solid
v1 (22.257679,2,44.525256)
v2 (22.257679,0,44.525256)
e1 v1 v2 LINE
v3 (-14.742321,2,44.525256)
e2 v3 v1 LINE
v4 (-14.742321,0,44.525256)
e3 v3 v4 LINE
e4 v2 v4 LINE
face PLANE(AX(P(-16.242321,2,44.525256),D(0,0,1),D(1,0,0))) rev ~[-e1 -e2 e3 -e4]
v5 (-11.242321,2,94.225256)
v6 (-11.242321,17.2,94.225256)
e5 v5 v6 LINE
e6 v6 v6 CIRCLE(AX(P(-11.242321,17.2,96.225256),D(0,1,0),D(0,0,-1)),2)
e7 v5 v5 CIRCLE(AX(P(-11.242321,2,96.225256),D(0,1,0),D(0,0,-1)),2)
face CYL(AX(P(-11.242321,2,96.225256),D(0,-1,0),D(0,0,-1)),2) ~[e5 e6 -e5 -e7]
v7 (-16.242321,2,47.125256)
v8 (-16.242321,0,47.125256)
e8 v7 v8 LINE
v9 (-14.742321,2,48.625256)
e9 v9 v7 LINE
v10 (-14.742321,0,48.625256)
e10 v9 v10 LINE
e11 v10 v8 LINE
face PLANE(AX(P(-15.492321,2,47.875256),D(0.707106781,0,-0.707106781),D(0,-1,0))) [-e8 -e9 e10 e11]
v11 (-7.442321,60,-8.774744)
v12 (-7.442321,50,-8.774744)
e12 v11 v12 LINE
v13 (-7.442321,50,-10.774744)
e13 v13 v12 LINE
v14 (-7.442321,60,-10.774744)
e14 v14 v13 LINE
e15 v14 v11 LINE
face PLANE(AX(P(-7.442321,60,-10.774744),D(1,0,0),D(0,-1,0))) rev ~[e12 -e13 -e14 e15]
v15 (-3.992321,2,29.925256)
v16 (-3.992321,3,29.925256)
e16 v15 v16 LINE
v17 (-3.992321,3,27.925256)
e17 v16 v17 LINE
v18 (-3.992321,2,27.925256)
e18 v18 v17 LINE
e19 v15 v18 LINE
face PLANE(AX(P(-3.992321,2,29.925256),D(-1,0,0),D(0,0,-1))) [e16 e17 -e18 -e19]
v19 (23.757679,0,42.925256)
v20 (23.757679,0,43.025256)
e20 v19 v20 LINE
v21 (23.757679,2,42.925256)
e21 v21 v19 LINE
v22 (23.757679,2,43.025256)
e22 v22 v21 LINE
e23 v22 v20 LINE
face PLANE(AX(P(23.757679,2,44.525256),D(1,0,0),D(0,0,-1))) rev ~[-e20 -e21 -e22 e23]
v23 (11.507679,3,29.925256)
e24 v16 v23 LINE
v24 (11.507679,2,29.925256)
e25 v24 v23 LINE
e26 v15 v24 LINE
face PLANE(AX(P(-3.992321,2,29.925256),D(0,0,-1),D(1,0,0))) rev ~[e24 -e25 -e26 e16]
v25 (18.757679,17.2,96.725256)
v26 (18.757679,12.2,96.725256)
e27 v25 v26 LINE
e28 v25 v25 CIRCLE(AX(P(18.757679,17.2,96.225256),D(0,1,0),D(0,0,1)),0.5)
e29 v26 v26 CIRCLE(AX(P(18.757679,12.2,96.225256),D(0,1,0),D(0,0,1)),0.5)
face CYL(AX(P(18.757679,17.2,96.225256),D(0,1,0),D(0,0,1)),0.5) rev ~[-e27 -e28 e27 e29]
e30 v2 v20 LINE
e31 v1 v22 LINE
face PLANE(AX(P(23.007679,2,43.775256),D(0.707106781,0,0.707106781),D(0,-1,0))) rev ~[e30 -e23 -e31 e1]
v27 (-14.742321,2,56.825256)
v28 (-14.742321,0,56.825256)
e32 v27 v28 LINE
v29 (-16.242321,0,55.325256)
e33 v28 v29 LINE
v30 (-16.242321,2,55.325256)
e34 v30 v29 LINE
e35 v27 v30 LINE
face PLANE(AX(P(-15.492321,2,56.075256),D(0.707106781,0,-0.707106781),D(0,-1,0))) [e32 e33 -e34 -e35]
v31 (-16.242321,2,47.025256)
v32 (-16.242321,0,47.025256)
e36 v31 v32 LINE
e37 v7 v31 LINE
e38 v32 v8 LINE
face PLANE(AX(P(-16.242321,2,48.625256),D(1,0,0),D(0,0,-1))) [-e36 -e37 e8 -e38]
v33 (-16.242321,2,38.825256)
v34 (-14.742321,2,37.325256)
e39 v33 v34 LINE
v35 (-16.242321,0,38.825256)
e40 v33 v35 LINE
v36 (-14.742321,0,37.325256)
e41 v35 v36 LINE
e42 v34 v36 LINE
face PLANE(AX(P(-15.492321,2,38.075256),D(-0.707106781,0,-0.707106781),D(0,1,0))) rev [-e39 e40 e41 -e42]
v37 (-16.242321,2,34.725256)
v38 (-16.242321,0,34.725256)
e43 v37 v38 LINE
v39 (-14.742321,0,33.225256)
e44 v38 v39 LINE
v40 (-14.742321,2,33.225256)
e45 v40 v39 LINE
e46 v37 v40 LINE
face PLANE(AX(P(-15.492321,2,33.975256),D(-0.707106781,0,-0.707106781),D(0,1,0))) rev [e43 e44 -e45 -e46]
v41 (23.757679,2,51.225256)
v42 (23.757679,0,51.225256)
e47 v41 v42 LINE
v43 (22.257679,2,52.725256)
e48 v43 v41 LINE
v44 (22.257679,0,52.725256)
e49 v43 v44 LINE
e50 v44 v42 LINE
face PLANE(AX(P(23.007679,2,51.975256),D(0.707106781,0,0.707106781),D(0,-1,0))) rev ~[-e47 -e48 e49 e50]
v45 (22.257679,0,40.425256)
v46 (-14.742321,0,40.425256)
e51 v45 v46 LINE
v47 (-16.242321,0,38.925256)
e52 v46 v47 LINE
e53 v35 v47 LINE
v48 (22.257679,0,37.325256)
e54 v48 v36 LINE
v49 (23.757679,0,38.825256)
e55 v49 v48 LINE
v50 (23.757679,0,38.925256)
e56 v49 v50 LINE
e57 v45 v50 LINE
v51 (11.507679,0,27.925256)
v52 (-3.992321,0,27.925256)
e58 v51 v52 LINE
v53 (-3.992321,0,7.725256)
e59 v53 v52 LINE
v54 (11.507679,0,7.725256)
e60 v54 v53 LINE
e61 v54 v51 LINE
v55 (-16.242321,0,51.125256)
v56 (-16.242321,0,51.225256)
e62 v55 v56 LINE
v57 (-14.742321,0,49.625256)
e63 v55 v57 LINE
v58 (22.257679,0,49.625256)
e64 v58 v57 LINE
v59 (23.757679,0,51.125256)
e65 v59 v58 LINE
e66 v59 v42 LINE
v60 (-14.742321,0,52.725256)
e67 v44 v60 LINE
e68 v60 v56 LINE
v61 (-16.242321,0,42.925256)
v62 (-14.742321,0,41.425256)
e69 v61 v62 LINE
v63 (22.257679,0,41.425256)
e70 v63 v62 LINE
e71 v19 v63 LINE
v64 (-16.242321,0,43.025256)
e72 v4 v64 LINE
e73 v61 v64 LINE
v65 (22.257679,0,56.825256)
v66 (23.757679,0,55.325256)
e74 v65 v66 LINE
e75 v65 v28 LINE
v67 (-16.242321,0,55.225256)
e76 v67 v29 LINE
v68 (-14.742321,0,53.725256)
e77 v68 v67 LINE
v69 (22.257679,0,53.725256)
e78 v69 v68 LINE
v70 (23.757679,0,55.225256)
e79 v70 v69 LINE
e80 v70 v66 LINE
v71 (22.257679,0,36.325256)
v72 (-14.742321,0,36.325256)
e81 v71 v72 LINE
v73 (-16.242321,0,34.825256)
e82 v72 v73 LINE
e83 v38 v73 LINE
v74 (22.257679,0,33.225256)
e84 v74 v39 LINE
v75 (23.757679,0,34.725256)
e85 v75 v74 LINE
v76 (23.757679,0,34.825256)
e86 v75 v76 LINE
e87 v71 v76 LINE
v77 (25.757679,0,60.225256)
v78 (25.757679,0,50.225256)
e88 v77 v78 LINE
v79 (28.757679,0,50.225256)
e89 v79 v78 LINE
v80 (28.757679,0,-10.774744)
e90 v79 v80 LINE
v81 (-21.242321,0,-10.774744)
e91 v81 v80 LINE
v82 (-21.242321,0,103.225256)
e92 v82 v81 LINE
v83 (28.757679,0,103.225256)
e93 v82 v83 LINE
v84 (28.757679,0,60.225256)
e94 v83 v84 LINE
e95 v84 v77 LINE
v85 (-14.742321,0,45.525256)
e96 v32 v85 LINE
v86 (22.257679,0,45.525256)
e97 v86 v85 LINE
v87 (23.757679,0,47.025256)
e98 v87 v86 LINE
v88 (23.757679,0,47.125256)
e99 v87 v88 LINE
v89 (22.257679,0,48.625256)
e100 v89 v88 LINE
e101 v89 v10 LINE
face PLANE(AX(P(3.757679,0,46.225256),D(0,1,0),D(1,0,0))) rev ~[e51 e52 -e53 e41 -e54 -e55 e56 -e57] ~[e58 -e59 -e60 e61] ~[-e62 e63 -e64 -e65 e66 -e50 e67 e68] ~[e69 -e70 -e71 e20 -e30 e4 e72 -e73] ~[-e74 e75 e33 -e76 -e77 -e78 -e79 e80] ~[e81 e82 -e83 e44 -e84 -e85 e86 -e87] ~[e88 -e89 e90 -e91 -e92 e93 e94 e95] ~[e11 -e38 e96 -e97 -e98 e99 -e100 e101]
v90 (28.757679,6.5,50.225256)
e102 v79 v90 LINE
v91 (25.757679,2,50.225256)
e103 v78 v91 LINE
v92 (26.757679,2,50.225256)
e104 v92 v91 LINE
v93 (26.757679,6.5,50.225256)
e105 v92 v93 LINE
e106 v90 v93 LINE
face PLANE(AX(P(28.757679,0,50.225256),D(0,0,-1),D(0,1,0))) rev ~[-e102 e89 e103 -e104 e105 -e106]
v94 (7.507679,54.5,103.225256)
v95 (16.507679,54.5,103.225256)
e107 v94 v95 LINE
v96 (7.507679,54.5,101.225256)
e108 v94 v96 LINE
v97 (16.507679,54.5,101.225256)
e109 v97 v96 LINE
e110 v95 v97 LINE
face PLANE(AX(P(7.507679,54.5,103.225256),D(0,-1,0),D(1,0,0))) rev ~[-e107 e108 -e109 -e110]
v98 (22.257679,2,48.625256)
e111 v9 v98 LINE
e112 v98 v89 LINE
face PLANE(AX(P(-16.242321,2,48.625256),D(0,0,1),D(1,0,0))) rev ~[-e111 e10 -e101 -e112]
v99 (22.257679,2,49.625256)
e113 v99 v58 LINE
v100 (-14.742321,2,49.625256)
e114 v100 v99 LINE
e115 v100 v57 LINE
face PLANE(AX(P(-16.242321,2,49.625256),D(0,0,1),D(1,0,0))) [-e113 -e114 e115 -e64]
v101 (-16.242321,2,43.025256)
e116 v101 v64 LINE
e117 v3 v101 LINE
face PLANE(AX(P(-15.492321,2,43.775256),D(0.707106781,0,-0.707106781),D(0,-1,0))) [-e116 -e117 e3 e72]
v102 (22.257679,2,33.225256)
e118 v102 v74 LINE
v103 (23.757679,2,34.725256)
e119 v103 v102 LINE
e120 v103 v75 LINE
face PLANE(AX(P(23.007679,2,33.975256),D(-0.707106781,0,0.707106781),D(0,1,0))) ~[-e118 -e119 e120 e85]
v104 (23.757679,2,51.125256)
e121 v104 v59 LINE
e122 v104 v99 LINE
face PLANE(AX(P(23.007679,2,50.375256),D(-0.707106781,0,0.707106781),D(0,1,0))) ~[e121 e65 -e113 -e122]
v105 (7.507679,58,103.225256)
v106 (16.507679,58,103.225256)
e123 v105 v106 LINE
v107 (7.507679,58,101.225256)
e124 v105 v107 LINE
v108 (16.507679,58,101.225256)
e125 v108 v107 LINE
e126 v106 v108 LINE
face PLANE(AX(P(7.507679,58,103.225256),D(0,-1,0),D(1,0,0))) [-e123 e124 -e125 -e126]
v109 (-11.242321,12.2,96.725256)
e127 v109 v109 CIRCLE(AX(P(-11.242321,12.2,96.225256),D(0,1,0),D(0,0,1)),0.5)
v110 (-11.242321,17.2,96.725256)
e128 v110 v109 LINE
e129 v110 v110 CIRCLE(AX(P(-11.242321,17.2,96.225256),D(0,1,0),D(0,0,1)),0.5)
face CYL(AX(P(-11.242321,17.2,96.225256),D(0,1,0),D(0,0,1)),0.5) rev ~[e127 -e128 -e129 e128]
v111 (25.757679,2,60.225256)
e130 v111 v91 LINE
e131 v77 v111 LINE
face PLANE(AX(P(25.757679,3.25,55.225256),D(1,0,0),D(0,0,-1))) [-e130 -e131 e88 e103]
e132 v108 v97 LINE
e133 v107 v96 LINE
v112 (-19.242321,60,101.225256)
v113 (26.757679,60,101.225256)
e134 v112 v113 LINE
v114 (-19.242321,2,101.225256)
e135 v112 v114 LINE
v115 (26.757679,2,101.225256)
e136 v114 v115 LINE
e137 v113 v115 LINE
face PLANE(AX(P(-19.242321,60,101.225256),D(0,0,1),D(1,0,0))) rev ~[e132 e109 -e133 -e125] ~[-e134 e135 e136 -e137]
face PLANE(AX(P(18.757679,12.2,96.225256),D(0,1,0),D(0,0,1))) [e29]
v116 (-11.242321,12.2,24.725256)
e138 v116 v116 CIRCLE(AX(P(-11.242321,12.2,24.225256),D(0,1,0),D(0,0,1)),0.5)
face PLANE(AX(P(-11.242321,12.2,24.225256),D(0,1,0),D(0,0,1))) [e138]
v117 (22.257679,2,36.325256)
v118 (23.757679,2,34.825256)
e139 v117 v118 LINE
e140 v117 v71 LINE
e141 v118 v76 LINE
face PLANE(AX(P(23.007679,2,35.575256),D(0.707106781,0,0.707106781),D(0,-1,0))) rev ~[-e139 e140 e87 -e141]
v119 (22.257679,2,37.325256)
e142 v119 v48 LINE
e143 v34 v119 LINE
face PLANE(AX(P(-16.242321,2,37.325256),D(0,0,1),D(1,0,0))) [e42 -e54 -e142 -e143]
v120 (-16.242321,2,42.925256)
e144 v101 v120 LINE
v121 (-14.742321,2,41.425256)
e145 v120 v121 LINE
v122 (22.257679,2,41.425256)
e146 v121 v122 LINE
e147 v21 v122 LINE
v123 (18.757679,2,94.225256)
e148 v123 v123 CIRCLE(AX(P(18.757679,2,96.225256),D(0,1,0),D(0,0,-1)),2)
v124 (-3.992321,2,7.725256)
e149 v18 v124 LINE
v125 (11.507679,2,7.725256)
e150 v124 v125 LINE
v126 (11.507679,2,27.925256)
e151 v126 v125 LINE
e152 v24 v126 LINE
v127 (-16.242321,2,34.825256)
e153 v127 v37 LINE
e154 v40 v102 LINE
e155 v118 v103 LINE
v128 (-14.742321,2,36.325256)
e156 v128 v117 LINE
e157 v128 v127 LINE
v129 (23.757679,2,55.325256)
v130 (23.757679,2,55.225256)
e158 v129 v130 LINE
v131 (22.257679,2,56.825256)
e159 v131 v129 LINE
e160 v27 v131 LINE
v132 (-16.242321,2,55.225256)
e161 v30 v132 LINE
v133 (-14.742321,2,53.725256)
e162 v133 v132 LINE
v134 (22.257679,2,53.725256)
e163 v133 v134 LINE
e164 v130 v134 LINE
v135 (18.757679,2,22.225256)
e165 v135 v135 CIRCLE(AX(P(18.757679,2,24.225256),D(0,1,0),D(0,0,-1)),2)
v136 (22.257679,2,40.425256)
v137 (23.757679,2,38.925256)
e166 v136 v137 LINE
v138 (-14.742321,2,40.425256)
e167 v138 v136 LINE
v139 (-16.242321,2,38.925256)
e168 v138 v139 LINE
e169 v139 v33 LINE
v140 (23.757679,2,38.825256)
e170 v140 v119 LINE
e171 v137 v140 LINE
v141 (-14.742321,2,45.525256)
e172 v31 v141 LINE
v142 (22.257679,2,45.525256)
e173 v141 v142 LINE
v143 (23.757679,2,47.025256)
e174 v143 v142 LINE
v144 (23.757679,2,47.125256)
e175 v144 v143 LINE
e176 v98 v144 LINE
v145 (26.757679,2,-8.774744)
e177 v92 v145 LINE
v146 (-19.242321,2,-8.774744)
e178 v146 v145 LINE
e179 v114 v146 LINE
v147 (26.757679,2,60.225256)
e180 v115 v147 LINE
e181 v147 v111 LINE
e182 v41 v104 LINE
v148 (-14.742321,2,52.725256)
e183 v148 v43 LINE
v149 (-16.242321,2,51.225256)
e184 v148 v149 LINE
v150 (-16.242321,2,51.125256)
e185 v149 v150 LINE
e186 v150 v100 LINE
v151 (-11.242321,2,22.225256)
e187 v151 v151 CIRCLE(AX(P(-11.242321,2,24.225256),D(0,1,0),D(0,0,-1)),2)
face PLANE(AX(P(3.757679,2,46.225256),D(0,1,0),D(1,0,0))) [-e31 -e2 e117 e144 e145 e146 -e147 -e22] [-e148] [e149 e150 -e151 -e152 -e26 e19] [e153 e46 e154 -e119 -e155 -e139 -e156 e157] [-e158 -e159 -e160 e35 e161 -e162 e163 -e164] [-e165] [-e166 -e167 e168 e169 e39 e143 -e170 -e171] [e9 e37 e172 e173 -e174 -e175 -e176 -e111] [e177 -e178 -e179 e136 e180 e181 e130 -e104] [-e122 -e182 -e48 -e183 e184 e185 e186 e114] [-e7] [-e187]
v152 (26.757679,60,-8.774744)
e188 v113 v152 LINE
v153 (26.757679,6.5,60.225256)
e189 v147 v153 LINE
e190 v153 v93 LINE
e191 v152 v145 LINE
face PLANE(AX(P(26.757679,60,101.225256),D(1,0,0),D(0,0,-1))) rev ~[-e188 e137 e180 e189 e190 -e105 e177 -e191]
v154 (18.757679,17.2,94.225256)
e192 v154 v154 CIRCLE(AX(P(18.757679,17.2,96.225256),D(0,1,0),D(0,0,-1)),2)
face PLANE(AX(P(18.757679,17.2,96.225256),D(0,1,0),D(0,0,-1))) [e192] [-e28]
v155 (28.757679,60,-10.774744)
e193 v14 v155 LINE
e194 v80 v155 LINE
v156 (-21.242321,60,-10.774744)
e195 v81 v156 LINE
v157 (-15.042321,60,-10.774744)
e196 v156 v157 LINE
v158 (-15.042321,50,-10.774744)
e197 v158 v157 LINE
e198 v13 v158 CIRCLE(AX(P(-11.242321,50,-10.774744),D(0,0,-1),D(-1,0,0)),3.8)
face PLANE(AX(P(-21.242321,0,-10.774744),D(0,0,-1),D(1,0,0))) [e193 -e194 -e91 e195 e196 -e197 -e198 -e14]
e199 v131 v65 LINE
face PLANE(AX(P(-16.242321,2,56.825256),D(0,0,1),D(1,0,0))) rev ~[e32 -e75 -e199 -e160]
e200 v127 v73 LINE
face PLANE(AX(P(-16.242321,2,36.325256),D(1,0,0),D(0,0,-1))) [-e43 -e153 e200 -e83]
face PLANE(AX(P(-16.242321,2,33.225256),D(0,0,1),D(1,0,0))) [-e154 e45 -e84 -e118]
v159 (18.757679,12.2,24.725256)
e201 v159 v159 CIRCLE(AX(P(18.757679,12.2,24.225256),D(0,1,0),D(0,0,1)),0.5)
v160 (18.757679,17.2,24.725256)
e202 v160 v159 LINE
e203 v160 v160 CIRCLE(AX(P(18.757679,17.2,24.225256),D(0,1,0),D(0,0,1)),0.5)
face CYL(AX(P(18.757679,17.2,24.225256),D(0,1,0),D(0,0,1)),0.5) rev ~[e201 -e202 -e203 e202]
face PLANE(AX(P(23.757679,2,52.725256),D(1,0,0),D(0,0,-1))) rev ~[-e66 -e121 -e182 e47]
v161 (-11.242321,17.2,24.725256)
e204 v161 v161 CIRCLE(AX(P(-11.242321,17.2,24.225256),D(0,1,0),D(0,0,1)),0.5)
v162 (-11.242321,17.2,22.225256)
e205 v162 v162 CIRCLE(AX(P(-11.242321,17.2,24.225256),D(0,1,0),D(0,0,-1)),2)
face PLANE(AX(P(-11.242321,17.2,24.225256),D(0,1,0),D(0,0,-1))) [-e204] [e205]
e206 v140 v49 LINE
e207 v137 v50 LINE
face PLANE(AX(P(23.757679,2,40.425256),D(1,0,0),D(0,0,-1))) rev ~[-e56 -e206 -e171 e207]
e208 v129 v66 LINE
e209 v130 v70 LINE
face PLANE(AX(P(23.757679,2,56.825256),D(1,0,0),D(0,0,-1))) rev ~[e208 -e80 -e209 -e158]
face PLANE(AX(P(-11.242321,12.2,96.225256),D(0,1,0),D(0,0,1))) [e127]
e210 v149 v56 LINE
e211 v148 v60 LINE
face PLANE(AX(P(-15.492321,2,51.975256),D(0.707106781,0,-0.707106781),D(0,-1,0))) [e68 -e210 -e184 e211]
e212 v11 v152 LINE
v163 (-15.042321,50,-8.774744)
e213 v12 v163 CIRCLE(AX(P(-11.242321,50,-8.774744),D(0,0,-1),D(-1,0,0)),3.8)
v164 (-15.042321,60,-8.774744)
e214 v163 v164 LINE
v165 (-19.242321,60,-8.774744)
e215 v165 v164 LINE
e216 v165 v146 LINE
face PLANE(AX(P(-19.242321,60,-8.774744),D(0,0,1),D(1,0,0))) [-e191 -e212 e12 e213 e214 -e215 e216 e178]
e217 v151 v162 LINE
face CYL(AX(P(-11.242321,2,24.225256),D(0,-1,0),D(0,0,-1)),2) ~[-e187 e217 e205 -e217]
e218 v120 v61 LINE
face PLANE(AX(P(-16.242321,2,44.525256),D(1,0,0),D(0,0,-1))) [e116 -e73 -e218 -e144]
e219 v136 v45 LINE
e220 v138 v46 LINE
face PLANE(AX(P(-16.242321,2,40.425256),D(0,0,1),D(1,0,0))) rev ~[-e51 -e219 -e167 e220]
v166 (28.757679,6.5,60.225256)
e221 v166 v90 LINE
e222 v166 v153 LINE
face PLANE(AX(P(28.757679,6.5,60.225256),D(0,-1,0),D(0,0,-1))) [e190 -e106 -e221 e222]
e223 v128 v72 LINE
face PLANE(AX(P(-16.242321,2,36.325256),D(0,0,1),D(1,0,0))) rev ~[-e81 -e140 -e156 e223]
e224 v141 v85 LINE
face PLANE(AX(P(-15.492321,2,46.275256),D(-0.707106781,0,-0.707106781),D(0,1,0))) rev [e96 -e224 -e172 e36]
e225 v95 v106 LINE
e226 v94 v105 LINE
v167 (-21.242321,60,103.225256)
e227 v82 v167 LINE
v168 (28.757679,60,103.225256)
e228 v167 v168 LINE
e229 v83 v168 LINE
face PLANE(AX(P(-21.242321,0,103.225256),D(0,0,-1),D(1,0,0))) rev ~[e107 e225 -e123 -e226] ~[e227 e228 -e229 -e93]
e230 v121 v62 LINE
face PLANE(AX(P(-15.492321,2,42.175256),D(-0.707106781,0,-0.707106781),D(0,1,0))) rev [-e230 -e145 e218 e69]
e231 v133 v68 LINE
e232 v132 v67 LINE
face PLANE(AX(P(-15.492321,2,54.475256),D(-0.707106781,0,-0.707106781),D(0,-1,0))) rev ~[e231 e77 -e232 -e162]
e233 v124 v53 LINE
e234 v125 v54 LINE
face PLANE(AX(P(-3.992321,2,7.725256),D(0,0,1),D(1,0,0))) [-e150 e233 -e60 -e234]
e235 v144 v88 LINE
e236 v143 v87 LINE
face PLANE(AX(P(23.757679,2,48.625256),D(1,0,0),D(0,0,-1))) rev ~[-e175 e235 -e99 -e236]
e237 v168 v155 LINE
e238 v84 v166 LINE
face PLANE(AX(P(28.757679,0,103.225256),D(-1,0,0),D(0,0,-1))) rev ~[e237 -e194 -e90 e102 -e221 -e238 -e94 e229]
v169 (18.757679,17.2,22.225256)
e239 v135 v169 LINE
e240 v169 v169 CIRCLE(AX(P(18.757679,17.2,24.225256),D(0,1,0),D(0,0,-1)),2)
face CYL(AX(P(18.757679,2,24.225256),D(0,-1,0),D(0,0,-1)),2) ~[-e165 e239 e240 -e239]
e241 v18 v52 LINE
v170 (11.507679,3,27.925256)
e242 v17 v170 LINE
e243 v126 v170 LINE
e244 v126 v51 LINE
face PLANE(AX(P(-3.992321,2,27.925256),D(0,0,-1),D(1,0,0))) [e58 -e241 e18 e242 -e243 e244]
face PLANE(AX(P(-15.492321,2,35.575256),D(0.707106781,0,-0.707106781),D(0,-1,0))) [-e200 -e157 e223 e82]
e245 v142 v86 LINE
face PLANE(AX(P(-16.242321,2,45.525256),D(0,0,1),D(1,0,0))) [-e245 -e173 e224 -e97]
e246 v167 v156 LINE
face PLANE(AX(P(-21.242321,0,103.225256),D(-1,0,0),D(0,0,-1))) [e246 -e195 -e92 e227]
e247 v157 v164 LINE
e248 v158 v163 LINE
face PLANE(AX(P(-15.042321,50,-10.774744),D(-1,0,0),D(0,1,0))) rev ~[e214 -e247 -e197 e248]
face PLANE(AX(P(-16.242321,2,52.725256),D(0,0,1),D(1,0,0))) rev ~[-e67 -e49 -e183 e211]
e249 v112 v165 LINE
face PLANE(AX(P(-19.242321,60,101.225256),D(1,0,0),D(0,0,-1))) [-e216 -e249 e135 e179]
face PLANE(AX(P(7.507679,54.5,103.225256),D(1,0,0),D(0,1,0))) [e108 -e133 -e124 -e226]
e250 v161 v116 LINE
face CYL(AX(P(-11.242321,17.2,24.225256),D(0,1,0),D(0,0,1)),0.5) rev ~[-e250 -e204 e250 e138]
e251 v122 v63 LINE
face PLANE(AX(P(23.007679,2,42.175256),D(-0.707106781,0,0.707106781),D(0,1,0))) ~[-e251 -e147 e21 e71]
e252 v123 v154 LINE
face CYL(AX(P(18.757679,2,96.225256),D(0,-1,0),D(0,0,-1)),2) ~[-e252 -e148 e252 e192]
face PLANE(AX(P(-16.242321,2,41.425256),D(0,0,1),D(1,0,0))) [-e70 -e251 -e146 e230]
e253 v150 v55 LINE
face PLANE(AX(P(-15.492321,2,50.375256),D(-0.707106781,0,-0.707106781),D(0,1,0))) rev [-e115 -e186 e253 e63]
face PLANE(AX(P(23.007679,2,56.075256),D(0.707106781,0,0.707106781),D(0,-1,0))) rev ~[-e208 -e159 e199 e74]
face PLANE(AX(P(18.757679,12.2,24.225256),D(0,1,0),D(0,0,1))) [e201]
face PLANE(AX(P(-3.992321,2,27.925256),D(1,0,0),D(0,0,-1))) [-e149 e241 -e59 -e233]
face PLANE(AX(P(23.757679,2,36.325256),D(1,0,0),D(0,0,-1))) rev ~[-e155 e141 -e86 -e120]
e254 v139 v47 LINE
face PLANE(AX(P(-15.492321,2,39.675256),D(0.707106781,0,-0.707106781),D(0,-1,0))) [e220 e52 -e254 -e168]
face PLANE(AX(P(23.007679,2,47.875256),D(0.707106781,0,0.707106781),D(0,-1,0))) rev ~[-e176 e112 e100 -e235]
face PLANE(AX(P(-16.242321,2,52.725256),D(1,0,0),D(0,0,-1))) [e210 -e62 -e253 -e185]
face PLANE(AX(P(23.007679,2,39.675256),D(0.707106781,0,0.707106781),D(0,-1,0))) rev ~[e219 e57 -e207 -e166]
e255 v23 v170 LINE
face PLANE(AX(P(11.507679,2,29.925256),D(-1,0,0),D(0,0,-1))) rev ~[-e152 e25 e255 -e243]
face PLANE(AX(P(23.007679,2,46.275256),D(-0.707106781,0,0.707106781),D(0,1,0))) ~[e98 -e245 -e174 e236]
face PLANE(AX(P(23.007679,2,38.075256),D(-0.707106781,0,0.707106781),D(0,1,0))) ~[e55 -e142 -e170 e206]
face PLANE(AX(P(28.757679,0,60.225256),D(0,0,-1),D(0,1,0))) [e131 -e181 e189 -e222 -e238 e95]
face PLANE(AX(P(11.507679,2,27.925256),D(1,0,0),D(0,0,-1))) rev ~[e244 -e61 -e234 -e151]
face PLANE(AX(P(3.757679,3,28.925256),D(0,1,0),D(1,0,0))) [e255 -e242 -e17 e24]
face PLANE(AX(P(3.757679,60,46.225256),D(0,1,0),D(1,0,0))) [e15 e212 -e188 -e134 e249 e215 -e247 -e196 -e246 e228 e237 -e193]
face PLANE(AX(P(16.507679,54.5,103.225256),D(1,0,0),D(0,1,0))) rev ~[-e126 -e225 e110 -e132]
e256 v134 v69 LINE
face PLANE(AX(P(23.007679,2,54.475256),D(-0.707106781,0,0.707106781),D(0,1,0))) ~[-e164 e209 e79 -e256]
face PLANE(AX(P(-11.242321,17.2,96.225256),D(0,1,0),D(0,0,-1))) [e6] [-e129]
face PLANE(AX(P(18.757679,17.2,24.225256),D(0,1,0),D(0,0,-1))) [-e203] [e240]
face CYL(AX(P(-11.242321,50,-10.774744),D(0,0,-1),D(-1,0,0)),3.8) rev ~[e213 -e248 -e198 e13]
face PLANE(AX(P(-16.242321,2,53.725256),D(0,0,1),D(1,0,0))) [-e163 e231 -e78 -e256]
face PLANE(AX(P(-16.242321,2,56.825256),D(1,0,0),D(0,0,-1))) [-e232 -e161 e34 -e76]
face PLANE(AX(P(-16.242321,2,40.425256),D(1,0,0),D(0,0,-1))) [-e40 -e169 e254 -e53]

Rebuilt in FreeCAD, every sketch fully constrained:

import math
import FreeCAD as App
import Part
import Sketcher
from FreeCAD import Vector
Q = App.Units.Quantity


def edges_at(feature, points):
    """Names of the edges that pass closest to the given points."""
    edges = feature.Shape.Edges
    near = lambda p: min(range(len(edges)), key=lambda i: edges[i].distToShape(Part.Vertex(*p))[0])
    return sorted({f"Edge{near(p) + 1}" for p in points})

doc = App.newDocument("Part")
params = doc.addObject("Spreadsheet::Sheet", "Params")
for row, (alias, value) in enumerate([
    ("sketch1_width", "50 mm"),
    ("sketch1_height", "114 mm"),
    ("pad1_length", "60 mm"),
    ("sketch2_width", "46 mm"),
    ("sketch2_height", "110 mm"),
    ("pocket1_length", "58 mm"),
    ("sketch3_diameter", "4 mm"),
    ("pad2_length", "15.2 mm"),
    ("sketch4_diameter", "1 mm"),
    ("pocket2_length", "5 mm"),
    ("sketch5_width", "15.5 mm"),
    ("sketch5_height", "20.2 mm"),
    ("sketch6_height", "2 mm"),
    ("sketch6_width", "15.5 mm"),
    ("pad3_length", "1 mm"),
    ("sketch7_width", "40 mm"),
    ("sketch7_height", "3.1 mm"),
    ("sketch8_width", "40 mm"),
    ("sketch8_height", "3.1 mm"),
    ("sketch9_width", "40 mm"),
    ("sketch9_height", "3.1 mm"),
    ("sketch10_width", "40 mm"),
    ("sketch10_height", "3.1 mm"),
    ("sketch11_width", "40 mm"),
    ("sketch11_height", "3.1 mm"),
    ("sketch12_width", "40 mm"),
    ("sketch12_height", "3.1 mm"),
    ("chamfer_size", "1.5 mm"),
    ("sketch13_height", "10 mm"),
    ("sketch13_width", "6.5 mm"),
    ("pocket10_length", "3 mm"),
    ("sketch14_radius", "3.8 mm"),
    ("sketch14_height", "10 mm"),
    ("sketch15_diameter", "7.6 mm"),
    ("sketch16_width", "9 mm"),
    ("sketch16_height", "3.5 mm"),
], start=1):
    params.set(f"A{row}", alias)
    params.set(f"B{row}", "=" + value)
    params.setAlias(f"B{row}", alias)

body = doc.addObject("PartDesign::Body", "Body")

# Sketch on XZ plane
sketch1 = body.newObject("Sketcher::SketchObject", "Sketch")
sketch1.AttachmentSupport = (doc.getObject("XZ_Plane"), [""])
sketch1.MapMode = "FlatFace"
sketch1.addGeometry([
    Part.LineSegment(Vector(-21, -11, 0), Vector(-21, 103, 0)),
    Part.LineSegment(Vector(-21, 103, 0), Vector(29, 103, 0)),
    Part.LineSegment(Vector(29, 103, 0), Vector(29, -11, 0)),
    Part.LineSegment(Vector(29, -11, 0), Vector(-21, -11, 0)),
], False)
sketch1.addConstraint([
    Sketcher.Constraint("Coincident", 0, 2, 1, 1),
    Sketcher.Constraint("Coincident", 1, 2, 2, 1),
    Sketcher.Constraint("Coincident", 2, 2, 3, 1),
    Sketcher.Constraint("Coincident", 3, 2, 0, 1),
    Sketcher.Constraint("Vertical", 0),
    Sketcher.Constraint("Horizontal", 1),
    Sketcher.Constraint("Vertical", 2),
    Sketcher.Constraint("Horizontal", 3),
    Sketcher.Constraint("DistanceX", 1, 1, 1, 2, Q("50 mm")),
    Sketcher.Constraint("DistanceY", 0, 1, 0, 2, Q("114 mm")),
    Sketcher.Constraint("DistanceX", 0, 2, -1, 1, Q("21.242321 mm")),
    Sketcher.Constraint("DistanceY", -1, 1, 0, 2, Q("103.225256 mm")),
])
sketch1.setExpression("Constraints[8]", "Params.sketch1_width")
sketch1.setExpression("Constraints[9]", "Params.sketch1_height")
pad1 = body.newObject("PartDesign::Pad", "Pad")
pad1.Profile = sketch1
pad1.setExpression("Length", "Params.pad1_length")
pad1.Reversed = True

# Sketch on XZ plane
sketch2 = body.newObject("Sketcher::SketchObject", "Sketch001")
sketch2.AttachmentSupport = (doc.getObject("XZ_Plane"), [""])
sketch2.MapMode = "FlatFace"
sketch2.AttachmentOffset = App.Placement(Vector(0, 0, -60), App.Rotation())
sketch2.addGeometry([
    Part.LineSegment(Vector(-19, -9, 0), Vector(-19, 101, 0)),
    Part.LineSegment(Vector(-19, 101, 0), Vector(27, 101, 0)),
    Part.LineSegment(Vector(27, 101, 0), Vector(27, -9, 0)),
    Part.LineSegment(Vector(27, -9, 0), Vector(-19, -9, 0)),
], False)
sketch2.addConstraint([
    Sketcher.Constraint("Coincident", 0, 2, 1, 1),
    Sketcher.Constraint("Coincident", 1, 2, 2, 1),
    Sketcher.Constraint("Coincident", 2, 2, 3, 1),
    Sketcher.Constraint("Coincident", 3, 2, 0, 1),
    Sketcher.Constraint("Vertical", 0),
    Sketcher.Constraint("Horizontal", 1),
    Sketcher.Constraint("Vertical", 2),
    Sketcher.Constraint("Horizontal", 3),
    Sketcher.Constraint("DistanceX", 1, 1, 1, 2, Q("46 mm")),
    Sketcher.Constraint("DistanceY", 0, 1, 0, 2, Q("110 mm")),
    Sketcher.Constraint("DistanceX", 0, 2, -1, 1, Q("19.242321 mm")),
    Sketcher.Constraint("DistanceY", -1, 1, 0, 2, Q("101.225256 mm")),
])
sketch2.setExpression("Constraints[8]", "Params.sketch2_width")
sketch2.setExpression("Constraints[9]", "Params.sketch2_height")
pocket1 = body.newObject("PartDesign::Pocket", "Pocket")
pocket1.Profile = sketch2
pocket1.setExpression("Length", "Params.pocket1_length")
pocket1.Reversed = True

# Sketch on XZ plane
sketch3 = body.newObject("Sketcher::SketchObject", "Sketch002")
sketch3.AttachmentSupport = (doc.getObject("XZ_Plane"), [""])
sketch3.MapMode = "FlatFace"
sketch3.AttachmentOffset = App.Placement(Vector(0, 0, -2), App.Rotation())
sketch3.addGeometry([
    Part.Circle(Vector(-11.2, 24.2, 0), Vector(0, 0, 1), 2),
    Part.Circle(Vector(18.8, 24.2, 0), Vector(0, 0, 1), 2),
    Part.Circle(Vector(18.8, 96.2, 0), Vector(0, 0, 1), 2),
    Part.Circle(Vector(-11.2, 96.2, 0), Vector(0, 0, 1), 2),
], False)
sketch3.addConstraint([
    Sketcher.Constraint("Equal", 0, 1),
    Sketcher.Constraint("Equal", 1, 2),
    Sketcher.Constraint("Equal", 2, 3),
    Sketcher.Constraint("Horizontal", 0, 3, 1, 3),
    Sketcher.Constraint("Horizontal", 2, 3, 3, 3),
    Sketcher.Constraint("Vertical", 1, 3, 2, 3),
    Sketcher.Constraint("Vertical", 0, 3, 3, 3),
    Sketcher.Constraint("Diameter", 0, Q("4 mm")),
    Sketcher.Constraint("DistanceX", 0, 3, 1, 3, Q("30 mm")),
    Sketcher.Constraint("DistanceY", 1, 3, 2, 3, Q("72 mm")),
    Sketcher.Constraint("DistanceX", 0, 3, -1, 1, Q("11.242321 mm")),
    Sketcher.Constraint("DistanceY", -1, 1, 0, 3, Q("24.225256 mm")),
])
sketch3.setExpression("Constraints[7]", "Params.sketch3_diameter")
pad2 = body.newObject("PartDesign::Pad", "Pad001")
pad2.Profile = sketch3
pad2.setExpression("Length", "Params.pad2_length")
pad2.Reversed = True

# Sketch on XZ plane
sketch4 = body.newObject("Sketcher::SketchObject", "Sketch003")
sketch4.AttachmentSupport = (doc.getObject("XZ_Plane"), [""])
sketch4.MapMode = "FlatFace"
sketch4.AttachmentOffset = App.Placement(Vector(0, 0, -17.2), App.Rotation())
sketch4.addGeometry([
    Part.Circle(Vector(-11.2, 24.2, 0), Vector(0, 0, 1), 0.5),
    Part.Circle(Vector(18.8, 24.2, 0), Vector(0, 0, 1), 0.5),
    Part.Circle(Vector(18.8, 96.2, 0), Vector(0, 0, 1), 0.5),
    Part.Circle(Vector(-11.2, 96.2, 0), Vector(0, 0, 1), 0.5),
], False)
sketch4.addConstraint([
    Sketcher.Constraint("Equal", 0, 1),
    Sketcher.Constraint("Equal", 1, 2),
    Sketcher.Constraint("Equal", 2, 3),
    Sketcher.Constraint("Horizontal", 0, 3, 1, 3),
    Sketcher.Constraint("Horizontal", 2, 3, 3, 3),
    Sketcher.Constraint("Vertical", 1, 3, 2, 3),
    Sketcher.Constraint("Vertical", 0, 3, 3, 3),
    Sketcher.Constraint("Diameter", 0, Q("1 mm")),
    Sketcher.Constraint("DistanceX", 0, 3, 1, 3, Q("30 mm")),
    Sketcher.Constraint("DistanceY", 1, 3, 2, 3, Q("72 mm")),
    Sketcher.Constraint("DistanceX", 0, 3, -1, 1, Q("11.242321 mm")),
    Sketcher.Constraint("DistanceY", -1, 1, 0, 3, Q("24.225256 mm")),
])
sketch4.setExpression("Constraints[7]", "Params.sketch4_diameter")
pocket2 = body.newObject("PartDesign::Pocket", "Pocket001")
pocket2.Profile = sketch4
pocket2.setExpression("Length", "Params.pocket2_length")
pocket2.Reversed = True

# Sketch on XZ plane
sketch5 = body.newObject("Sketcher::SketchObject", "Sketch004")
sketch5.AttachmentSupport = (doc.getObject("XZ_Plane"), [""])
sketch5.MapMode = "FlatFace"
sketch5.AttachmentOffset = App.Placement(Vector(0, 0, -2), App.Rotation())
sketch5.addGeometry([
    Part.LineSegment(Vector(-4, 8, 0), Vector(-4, 28, 0)),
    Part.LineSegment(Vector(-4, 28, 0), Vector(12, 28, 0)),
    Part.LineSegment(Vector(12, 28, 0), Vector(12, 8, 0)),
    Part.LineSegment(Vector(12, 8, 0), Vector(-4, 8, 0)),
], False)
sketch5.addConstraint([
    Sketcher.Constraint("Coincident", 0, 2, 1, 1),
    Sketcher.Constraint("Coincident", 1, 2, 2, 1),
    Sketcher.Constraint("Coincident", 2, 2, 3, 1),
    Sketcher.Constraint("Coincident", 3, 2, 0, 1),
    Sketcher.Constraint("Vertical", 0),
    Sketcher.Constraint("Horizontal", 1),
    Sketcher.Constraint("Vertical", 2),
    Sketcher.Constraint("Horizontal", 3),
    Sketcher.Constraint("DistanceX", 1, 1, 1, 2, Q("15.5 mm")),
    Sketcher.Constraint("DistanceY", 0, 1, 0, 2, Q("20.2 mm")),
    Sketcher.Constraint("DistanceX", 0, 2, -1, 1, Q("3.992321 mm")),
    Sketcher.Constraint("DistanceY", -1, 1, 0, 2, Q("27.925256 mm")),
])
sketch5.setExpression("Constraints[8]", "Params.sketch5_width")
sketch5.setExpression("Constraints[9]", "Params.sketch5_height")
pocket3 = body.newObject("PartDesign::Pocket", "Pocket002")
pocket3.Profile = sketch5
pocket3.Type = "UpToFirst"
pocket3.Reversed = True

# Sketch on XZ plane
sketch6 = body.newObject("Sketcher::SketchObject", "Sketch005")
sketch6.AttachmentSupport = (doc.getObject("XZ_Plane"), [""])
sketch6.MapMode = "FlatFace"
sketch6.AttachmentOffset = App.Placement(Vector(0, 0, -2), App.Rotation())
sketch6.addGeometry([
    Part.LineSegment(Vector(-4, 27.9, 0), Vector(-4, 29.9, 0)),
    Part.LineSegment(Vector(-4, 29.9, 0), Vector(11.5, 29.9, 0)),
    Part.LineSegment(Vector(11.5, 29.9, 0), Vector(11.5, 27.9, 0)),
    Part.LineSegment(Vector(11.5, 27.9, 0), Vector(-4, 27.9, 0)),
], False)
sketch6.addConstraint([
    Sketcher.Constraint("Coincident", 0, 2, 1, 1),
    Sketcher.Constraint("Coincident", 1, 2, 2, 1),
    Sketcher.Constraint("Coincident", 2, 2, 3, 1),
    Sketcher.Constraint("Coincident", 3, 2, 0, 1),
    Sketcher.Constraint("Vertical", 0),
    Sketcher.Constraint("Horizontal", 1),
    Sketcher.Constraint("Vertical", 2),
    Sketcher.Constraint("Horizontal", 3),
    Sketcher.Constraint("DistanceY", 0, 1, 0, 2, Q("2 mm")),
    Sketcher.Constraint("DistanceX", 1, 1, 1, 2, Q("15.5 mm")),
    Sketcher.Constraint("DistanceX", 0, 2, -1, 1, Q("3.992321 mm")),
    Sketcher.Constraint("DistanceY", -1, 1, 0, 2, Q("29.925256 mm")),
])
sketch6.setExpression("Constraints[8]", "Params.sketch6_height")
sketch6.setExpression("Constraints[9]", "Params.sketch6_width")
pad3 = body.newObject("PartDesign::Pad", "Pad002")
pad3.Profile = sketch6
pad3.setExpression("Length", "Params.pad3_length")
pad3.Reversed = True

# Sketch on XZ plane
sketch7 = body.newObject("Sketcher::SketchObject", "Sketch006")
sketch7.AttachmentSupport = (doc.getObject("XZ_Plane"), [""])
sketch7.MapMode = "FlatFace"
sketch7.AttachmentOffset = App.Placement(Vector(0, 0, -2), App.Rotation())
sketch7.addGeometry([
    Part.LineSegment(Vector(-16.2, 33.2, 0), Vector(-16.2, 36.3, 0)),
    Part.LineSegment(Vector(-16.2, 36.3, 0), Vector(23.8, 36.3, 0)),
    Part.LineSegment(Vector(23.8, 36.3, 0), Vector(23.8, 33.2, 0)),
    Part.LineSegment(Vector(23.8, 33.2, 0), Vector(-16.2, 33.2, 0)),
], False)
sketch7.addConstraint([
    Sketcher.Constraint("Coincident", 0, 2, 1, 1),
    Sketcher.Constraint("Coincident", 1, 2, 2, 1),
    Sketcher.Constraint("Coincident", 2, 2, 3, 1),
    Sketcher.Constraint("Coincident", 3, 2, 0, 1),
    Sketcher.Constraint("Vertical", 0),
    Sketcher.Constraint("Horizontal", 1),
    Sketcher.Constraint("Vertical", 2),
    Sketcher.Constraint("Horizontal", 3),
    Sketcher.Constraint("DistanceX", 1, 1, 1, 2, Q("40 mm")),
    Sketcher.Constraint("DistanceY", 0, 1, 0, 2, Q("3.1 mm")),
    Sketcher.Constraint("DistanceX", 0, 2, -1, 1, Q("16.242321 mm")),
    Sketcher.Constraint("DistanceY", -1, 1, 0, 2, Q("36.325256 mm")),
])
sketch7.setExpression("Constraints[8]", "Params.sketch7_width")
sketch7.setExpression("Constraints[9]", "Params.sketch7_height")
pocket4 = body.newObject("PartDesign::Pocket", "Pocket003")
pocket4.Profile = sketch7
pocket4.Type = "UpToFirst"
pocket4.Reversed = True

# Sketch on XZ plane
sketch8 = body.newObject("Sketcher::SketchObject", "Sketch007")
sketch8.AttachmentSupport = (doc.getObject("XZ_Plane"), [""])
sketch8.MapMode = "FlatFace"
sketch8.AttachmentOffset = App.Placement(Vector(0, 0, -2), App.Rotation())
sketch8.addGeometry([
    Part.LineSegment(Vector(-16.2, 37.3, 0), Vector(-16.2, 40.4, 0)),
    Part.LineSegment(Vector(-16.2, 40.4, 0), Vector(23.8, 40.4, 0)),
    Part.LineSegment(Vector(23.8, 40.4, 0), Vector(23.8, 37.3, 0)),
    Part.LineSegment(Vector(23.8, 37.3, 0), Vector(-16.2, 37.3, 0)),
], False)
sketch8.addConstraint([
    Sketcher.Constraint("Coincident", 0, 2, 1, 1),
    Sketcher.Constraint("Coincident", 1, 2, 2, 1),
    Sketcher.Constraint("Coincident", 2, 2, 3, 1),
    Sketcher.Constraint("Coincident", 3, 2, 0, 1),
    Sketcher.Constraint("Vertical", 0),
    Sketcher.Constraint("Horizontal", 1),
    Sketcher.Constraint("Vertical", 2),
    Sketcher.Constraint("Horizontal", 3),
    Sketcher.Constraint("DistanceX", 1, 1, 1, 2, Q("40 mm")),
    Sketcher.Constraint("DistanceY", 0, 1, 0, 2, Q("3.1 mm")),
    Sketcher.Constraint("DistanceX", 0, 2, -1, 1, Q("16.242321 mm")),
    Sketcher.Constraint("DistanceY", -1, 1, 0, 2, Q("40.425256 mm")),
])
sketch8.setExpression("Constraints[8]", "Params.sketch8_width")
sketch8.setExpression("Constraints[9]", "Params.sketch8_height")
pocket5 = body.newObject("PartDesign::Pocket", "Pocket004")
pocket5.Profile = sketch8
pocket5.Type = "UpToFirst"
pocket5.Reversed = True

# Sketch on XZ plane
sketch9 = body.newObject("Sketcher::SketchObject", "Sketch008")
sketch9.AttachmentSupport = (doc.getObject("XZ_Plane"), [""])
sketch9.MapMode = "FlatFace"
sketch9.AttachmentOffset = App.Placement(Vector(0, 0, -2), App.Rotation())
sketch9.addGeometry([
    Part.LineSegment(Vector(-16.2, 41.4, 0), Vector(-16.2, 44.5, 0)),
    Part.LineSegment(Vector(-16.2, 44.5, 0), Vector(23.8, 44.5, 0)),
    Part.LineSegment(Vector(23.8, 44.5, 0), Vector(23.8, 41.4, 0)),
    Part.LineSegment(Vector(23.8, 41.4, 0), Vector(-16.2, 41.4, 0)),
], False)
sketch9.addConstraint([
    Sketcher.Constraint("Coincident", 0, 2, 1, 1),
    Sketcher.Constraint("Coincident", 1, 2, 2, 1),
    Sketcher.Constraint("Coincident", 2, 2, 3, 1),
    Sketcher.Constraint("Coincident", 3, 2, 0, 1),
    Sketcher.Constraint("Vertical", 0),
    Sketcher.Constraint("Horizontal", 1),
    Sketcher.Constraint("Vertical", 2),
    Sketcher.Constraint("Horizontal", 3),
    Sketcher.Constraint("DistanceX", 1, 1, 1, 2, Q("40 mm")),
    Sketcher.Constraint("DistanceY", 0, 1, 0, 2, Q("3.1 mm")),
    Sketcher.Constraint("DistanceX", 0, 2, -1, 1, Q("16.242321 mm")),
    Sketcher.Constraint("DistanceY", -1, 1, 0, 2, Q("44.525256 mm")),
])
sketch9.setExpression("Constraints[8]", "Params.sketch9_width")
sketch9.setExpression("Constraints[9]", "Params.sketch9_height")
pocket6 = body.newObject("PartDesign::Pocket", "Pocket005")
pocket6.Profile = sketch9
pocket6.Type = "UpToFirst"
pocket6.Reversed = True

# Sketch on XZ plane
sketch10 = body.newObject("Sketcher::SketchObject", "Sketch009")
sketch10.AttachmentSupport = (doc.getObject("XZ_Plane"), [""])
sketch10.MapMode = "FlatFace"
sketch10.AttachmentOffset = App.Placement(Vector(0, 0, -2), App.Rotation())
sketch10.addGeometry([
    Part.LineSegment(Vector(-16.2, 45.5, 0), Vector(-16.2, 48.6, 0)),
    Part.LineSegment(Vector(-16.2, 48.6, 0), Vector(23.8, 48.6, 0)),
    Part.LineSegment(Vector(23.8, 48.6, 0), Vector(23.8, 45.5, 0)),
    Part.LineSegment(Vector(23.8, 45.5, 0), Vector(-16.2, 45.5, 0)),
], False)
sketch10.addConstraint([
    Sketcher.Constraint("Coincident", 0, 2, 1, 1),
    Sketcher.Constraint("Coincident", 1, 2, 2, 1),
    Sketcher.Constraint("Coincident", 2, 2, 3, 1),
    Sketcher.Constraint("Coincident", 3, 2, 0, 1),
    Sketcher.Constraint("Vertical", 0),
    Sketcher.Constraint("Horizontal", 1),
    Sketcher.Constraint("Vertical", 2),
    Sketcher.Constraint("Horizontal", 3),
    Sketcher.Constraint("DistanceX", 1, 1, 1, 2, Q("40 mm")),
    Sketcher.Constraint("DistanceY", 0, 1, 0, 2, Q("3.1 mm")),
    Sketcher.Constraint("DistanceX", 0, 2, -1, 1, Q("16.242321 mm")),
    Sketcher.Constraint("DistanceY", -1, 1, 0, 2, Q("48.625256 mm")),
])
sketch10.setExpression("Constraints[8]", "Params.sketch10_width")
sketch10.setExpression("Constraints[9]", "Params.sketch10_height")
pocket7 = body.newObject("PartDesign::Pocket", "Pocket006")
pocket7.Profile = sketch10
pocket7.Type = "UpToFirst"
pocket7.Reversed = True

# Sketch on XZ plane
sketch11 = body.newObject("Sketcher::SketchObject", "Sketch010")
sketch11.AttachmentSupport = (doc.getObject("XZ_Plane"), [""])
sketch11.MapMode = "FlatFace"
sketch11.AttachmentOffset = App.Placement(Vector(0, 0, -2), App.Rotation())
sketch11.addGeometry([
    Part.LineSegment(Vector(-16.2, 49.6, 0), Vector(-16.2, 52.7, 0)),
    Part.LineSegment(Vector(-16.2, 52.7, 0), Vector(23.8, 52.7, 0)),
    Part.LineSegment(Vector(23.8, 52.7, 0), Vector(23.8, 49.6, 0)),
    Part.LineSegment(Vector(23.8, 49.6, 0), Vector(-16.2, 49.6, 0)),
], False)
sketch11.addConstraint([
    Sketcher.Constraint("Coincident", 0, 2, 1, 1),
    Sketcher.Constraint("Coincident", 1, 2, 2, 1),
    Sketcher.Constraint("Coincident", 2, 2, 3, 1),
    Sketcher.Constraint("Coincident", 3, 2, 0, 1),
    Sketcher.Constraint("Vertical", 0),
    Sketcher.Constraint("Horizontal", 1),
    Sketcher.Constraint("Vertical", 2),
    Sketcher.Constraint("Horizontal", 3),
    Sketcher.Constraint("DistanceX", 1, 1, 1, 2, Q("40 mm")),
    Sketcher.Constraint("DistanceY", 0, 1, 0, 2, Q("3.1 mm")),
    Sketcher.Constraint("DistanceX", 0, 2, -1, 1, Q("16.242321 mm")),
    Sketcher.Constraint("DistanceY", -1, 1, 0, 2, Q("52.725256 mm")),
])
sketch11.setExpression("Constraints[8]", "Params.sketch11_width")
sketch11.setExpression("Constraints[9]", "Params.sketch11_height")
pocket8 = body.newObject("PartDesign::Pocket", "Pocket007")
pocket8.Profile = sketch11
pocket8.Type = "UpToFirst"
pocket8.Reversed = True

# Sketch on XZ plane
sketch12 = body.newObject("Sketcher::SketchObject", "Sketch011")
sketch12.AttachmentSupport = (doc.getObject("XZ_Plane"), [""])
sketch12.MapMode = "FlatFace"
sketch12.AttachmentOffset = App.Placement(Vector(0, 0, -2), App.Rotation())
sketch12.addGeometry([
    Part.LineSegment(Vector(-16.2, 53.7, 0), Vector(-16.2, 56.8, 0)),
    Part.LineSegment(Vector(-16.2, 56.8, 0), Vector(23.8, 56.8, 0)),
    Part.LineSegment(Vector(23.8, 56.8, 0), Vector(23.8, 53.7, 0)),
    Part.LineSegment(Vector(23.8, 53.7, 0), Vector(-16.2, 53.7, 0)),
], False)
sketch12.addConstraint([
    Sketcher.Constraint("Coincident", 0, 2, 1, 1),
    Sketcher.Constraint("Coincident", 1, 2, 2, 1),
    Sketcher.Constraint("Coincident", 2, 2, 3, 1),
    Sketcher.Constraint("Coincident", 3, 2, 0, 1),
    Sketcher.Constraint("Vertical", 0),
    Sketcher.Constraint("Horizontal", 1),
    Sketcher.Constraint("Vertical", 2),
    Sketcher.Constraint("Horizontal", 3),
    Sketcher.Constraint("DistanceX", 1, 1, 1, 2, Q("40 mm")),
    Sketcher.Constraint("DistanceY", 0, 1, 0, 2, Q("3.1 mm")),
    Sketcher.Constraint("DistanceX", 0, 2, -1, 1, Q("16.242321 mm")),
    Sketcher.Constraint("DistanceY", -1, 1, 0, 2, Q("56.825256 mm")),
])
sketch12.setExpression("Constraints[8]", "Params.sketch12_width")
sketch12.setExpression("Constraints[9]", "Params.sketch12_height")
pocket9 = body.newObject("PartDesign::Pocket", "Pocket008")
pocket9.Profile = sketch12
pocket9.Type = "UpToFirst"
pocket9.Reversed = True
doc.recompute()

chamfer = body.newObject("PartDesign::Chamfer", "Chamfer")
chamfer.Base = (pocket9, edges_at(pocket9, [
    (-16.242, 1, 36.325),
    (-16.242, 1, 33.225),
    (23.758, 1, 33.225),
    (23.758, 1, 36.325),
    (-16.242, 1, 37.325),
    (23.758, 1, 37.325),
    (23.758, 1, 40.425),
    (-16.242, 1, 40.425),
    (-16.242, 1, 41.425),
    (23.758, 1, 41.425),
    (23.758, 1, 44.525),
    (-16.242, 1, 44.525),
    (-16.242, 1, 45.525),
    (23.758, 1, 45.525),
    (23.758, 1, 48.625),
    (-16.242, 1, 48.625),
    (-16.242, 1, 49.625),
    (23.758, 1, 49.625),
    (23.758, 1, 52.725),
    (-16.242, 1, 52.725),
    (-16.242, 1, 53.725),
    (23.758, 1, 53.725),
    (23.758, 1, 56.825),
    (-16.242, 1, 56.825),
]))
chamfer.setExpression("Size", "Params.chamfer_size")

# Sketch on YZ plane
sketch13 = body.newObject("Sketcher::SketchObject", "Sketch012")
sketch13.AttachmentSupport = (doc.getObject("YZ_Plane"), [""])
sketch13.MapMode = "FlatFace"
sketch13.AttachmentOffset = App.Placement(Vector(0, 0, 28.757679), App.Rotation())
sketch13.addGeometry([
    Part.LineSegment(Vector(6, 60, 0), Vector(0, 60, 0)),
    Part.LineSegment(Vector(0, 60, 0), Vector(0, 50, 0)),
    Part.LineSegment(Vector(0, 50, 0), Vector(6, 50, 0)),
    Part.LineSegment(Vector(6, 50, 0), Vector(6, 60, 0)),
], False)
sketch13.addConstraint([
    Sketcher.Constraint("Coincident", 0, 2, 1, 1),
    Sketcher.Constraint("Coincident", 1, 2, 2, 1),
    Sketcher.Constraint("Coincident", 2, 2, 3, 1),
    Sketcher.Constraint("Coincident", 3, 2, 0, 1),
    Sketcher.Constraint("Horizontal", 0),
    Sketcher.Constraint("Vertical", 1),
    Sketcher.Constraint("Horizontal", 2),
    Sketcher.Constraint("Vertical", 3),
    Sketcher.Constraint("PointOnObject", 0, 2, -2),
    Sketcher.Constraint("DistanceY", 1, 2, 1, 1, Q("10 mm")),
    Sketcher.Constraint("DistanceX", 0, 2, 0, 1, Q("6.5 mm")),
    Sketcher.Constraint("DistanceY", -1, 1, 0, 2, Q("60.225256 mm")),
])
sketch13.setExpression("Constraints[9]", "Params.sketch13_height")
sketch13.setExpression("Constraints[10]", "Params.sketch13_width")
pocket10 = body.newObject("PartDesign::Pocket", "Pocket009")
pocket10.Profile = sketch13
pocket10.setExpression("Length", "Params.pocket10_length")

# Sketch on XY plane
sketch14 = body.newObject("Sketcher::SketchObject", "Sketch013")
sketch14.AttachmentSupport = (doc.getObject("XY_Plane"), [""])
sketch14.MapMode = "FlatFace"
sketch14.AttachmentOffset = App.Placement(Vector(0, 0, -10.774744), App.Rotation())
sketch14.addGeometry([
    Part.LineSegment(Vector(-7.4, 60, 0), Vector(-7.4, 50, 0)),
    Part.ArcOfCircle(Part.Circle(Vector(-11.2, 50, 0), Vector(0, 0, 1), 3.8), math.radians(0), math.radians(180)),
    Part.LineSegment(Vector(-15, 50, 0), Vector(-15, 60, 0)),
    Part.LineSegment(Vector(-15, 60, 0), Vector(-7.4, 60, 0)),
], False)
sketch14.addConstraint([
    Sketcher.Constraint("Tangent", 0, 2, 1, 1),
    Sketcher.Constraint("Tangent", 1, 2, 2, 1),
    Sketcher.Constraint("Coincident", 2, 2, 3, 1),
    Sketcher.Constraint("Coincident", 3, 2, 0, 1),
    Sketcher.Constraint("Vertical", 0),
    Sketcher.Constraint("Vertical", 2),
    Sketcher.Constraint("Horizontal", 3),
    Sketcher.Constraint("Radius", 1, Q("3.8 mm")),
    Sketcher.Constraint("DistanceY", 0, 2, 0, 1, Q("10 mm")),
    Sketcher.Constraint("DistanceY", -1, 1, 1, 3, Q("50 mm")),
    Sketcher.Constraint("DistanceX", 1, 3, -1, 1, Q("11.242321 mm")),
])
sketch14.setExpression("Constraints[7]", "Params.sketch14_radius")
sketch14.setExpression("Constraints[8]", "Params.sketch14_height")
pocket11 = body.newObject("PartDesign::Pocket", "Pocket010")
pocket11.Profile = sketch14
pocket11.Type = "UpToFirst"
pocket11.Reversed = True

# Sketch on XY plane
sketch15 = body.newObject("Sketcher::SketchObject", "Sketch014")
sketch15.AttachmentSupport = (doc.getObject("XY_Plane"), [""])
sketch15.MapMode = "FlatFace"
sketch15.AttachmentOffset = App.Placement(Vector(0, 0, -10.774744), App.Rotation())
sketch15.addGeometry(Part.Circle(Vector(-11.2, 50, 0), Vector(0, 0, 1), 3.8), False)
sketch15.addConstraint([
    Sketcher.Constraint("Diameter", 0, Q("7.6 mm")),
    Sketcher.Constraint("DistanceY", -1, 1, 0, 3, Q("50 mm")),
    Sketcher.Constraint("DistanceX", 0, 3, -1, 1, Q("11.242321 mm")),
])
sketch15.setExpression("Constraints[0]", "Params.sketch15_diameter")
pocket12 = body.newObject("PartDesign::Pocket", "Pocket011")
pocket12.Profile = sketch15
pocket12.Type = "UpToFirst"
pocket12.Reversed = True

# Sketch on XY plane
sketch16 = body.newObject("Sketcher::SketchObject", "Sketch015")
sketch16.AttachmentSupport = (doc.getObject("XY_Plane"), [""])
sketch16.MapMode = "FlatFace"
sketch16.AttachmentOffset = App.Placement(Vector(0, 0, 103.225256), App.Rotation())
sketch16.addGeometry([
    Part.LineSegment(Vector(7.5, 58, 0), Vector(7.5, 54.5, 0)),
    Part.LineSegment(Vector(7.5, 54.5, 0), Vector(16.5, 54.5, 0)),
    Part.LineSegment(Vector(16.5, 54.5, 0), Vector(16.5, 58, 0)),
    Part.LineSegment(Vector(16.5, 58, 0), Vector(7.5, 58, 0)),
], False)
sketch16.addConstraint([
    Sketcher.Constraint("Coincident", 0, 2, 1, 1),
    Sketcher.Constraint("Coincident", 1, 2, 2, 1),
    Sketcher.Constraint("Coincident", 2, 2, 3, 1),
    Sketcher.Constraint("Coincident", 3, 2, 0, 1),
    Sketcher.Constraint("Vertical", 0),
    Sketcher.Constraint("Horizontal", 1),
    Sketcher.Constraint("Vertical", 2),
    Sketcher.Constraint("Horizontal", 3),
    Sketcher.Constraint("DistanceX", 1, 1, 1, 2, Q("9 mm")),
    Sketcher.Constraint("DistanceY", 0, 2, 0, 1, Q("3.5 mm")),
    Sketcher.Constraint("DistanceY", -1, 1, 2, 2, Q("58 mm")),
    Sketcher.Constraint("DistanceX", -1, 1, 0, 2, Q("7.507679 mm")),
])
sketch16.setExpression("Constraints[8]", "Params.sketch16_width")
sketch16.setExpression("Constraints[9]", "Params.sketch16_height")
pocket13 = body.newObject("PartDesign::Pocket", "Pocket012")
pocket13.Profile = sketch16
pocket13.Type = "UpToFirst"

doc.recompute()
